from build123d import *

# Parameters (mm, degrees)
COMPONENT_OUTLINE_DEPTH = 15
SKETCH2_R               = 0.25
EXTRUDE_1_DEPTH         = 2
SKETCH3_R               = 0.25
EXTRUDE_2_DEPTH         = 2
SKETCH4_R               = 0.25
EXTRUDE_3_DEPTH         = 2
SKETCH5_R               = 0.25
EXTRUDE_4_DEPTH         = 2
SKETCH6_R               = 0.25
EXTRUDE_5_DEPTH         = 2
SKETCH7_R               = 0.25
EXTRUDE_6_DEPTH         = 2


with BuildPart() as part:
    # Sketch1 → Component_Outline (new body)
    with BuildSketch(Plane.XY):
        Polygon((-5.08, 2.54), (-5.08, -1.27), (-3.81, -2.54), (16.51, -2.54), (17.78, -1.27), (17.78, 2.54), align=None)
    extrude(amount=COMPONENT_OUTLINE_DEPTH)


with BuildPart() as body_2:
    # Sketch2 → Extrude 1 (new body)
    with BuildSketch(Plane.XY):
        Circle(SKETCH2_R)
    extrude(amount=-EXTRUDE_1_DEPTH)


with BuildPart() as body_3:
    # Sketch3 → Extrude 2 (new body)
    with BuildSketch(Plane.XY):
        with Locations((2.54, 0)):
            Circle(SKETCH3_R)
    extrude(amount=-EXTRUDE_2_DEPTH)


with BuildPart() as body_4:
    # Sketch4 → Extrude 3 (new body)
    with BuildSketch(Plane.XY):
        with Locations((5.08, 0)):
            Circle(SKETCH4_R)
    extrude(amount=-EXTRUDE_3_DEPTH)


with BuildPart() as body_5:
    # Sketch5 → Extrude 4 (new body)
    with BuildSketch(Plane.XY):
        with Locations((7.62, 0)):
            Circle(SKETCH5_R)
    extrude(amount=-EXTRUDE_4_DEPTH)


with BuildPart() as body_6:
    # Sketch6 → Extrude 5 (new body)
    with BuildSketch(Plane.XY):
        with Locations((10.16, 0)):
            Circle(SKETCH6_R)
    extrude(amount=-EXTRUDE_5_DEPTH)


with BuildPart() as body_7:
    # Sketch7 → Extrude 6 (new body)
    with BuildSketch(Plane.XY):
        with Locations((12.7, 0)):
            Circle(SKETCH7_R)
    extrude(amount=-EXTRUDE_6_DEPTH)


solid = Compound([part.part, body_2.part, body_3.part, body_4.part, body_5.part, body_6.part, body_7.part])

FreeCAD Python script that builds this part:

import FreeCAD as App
import Part
import Sketcher
from FreeCAD import Vector
Q = App.Units.Quantity


def add_polygon(sketch, points):
    """Adds a closed chain of lines whose ends are joined by coincident constraints."""
    first, n = sketch.GeometryCount, len(points)
    for a, b in zip(points, points[1:] + points[:1]):
        sketch.addGeometry(Part.LineSegment(App.Vector(*a, 0), App.Vector(*b, 0)), False)
    for i in range(n):
        sketch.addConstraint(Sketcher.Constraint("Coincident", first + i, 2, first + (i + 1) % n, 1))

doc = App.newDocument("Part")
params = doc.addObject("Spreadsheet::Sheet", "Params")
for row, (alias, value) in enumerate([
    ("sketch1_width", "20.32 mm"),
    ("sketch1_width2", "22.86 mm"),
    ("sketch1_height", "3.81 mm"),
    ("pad1_length", "15 mm"),
    ("sketch2_diameter", "0.5 mm"),
    ("pad2_length", "2 mm"),
    ("sketch3_diameter", "0.5 mm"),
    ("pad3_length", "2 mm"),
    ("sketch4_diameter", "0.5 mm"),
    ("pad4_length", "2 mm"),
    ("sketch5_diameter", "0.5 mm"),
    ("pad5_length", "2 mm"),
    ("sketch6_diameter", "0.5 mm"),
    ("pad6_length", "2 mm"),
    ("sketch7_diameter", "0.5 mm"),
    ("pad7_length", "2 mm"),
], start=1):
    params.set(f"A{row}", alias)
    params.set(f"B{row}", "=" + value)
    params.setAlias(f"B{row}", alias)

body = doc.addObject("PartDesign::Body", "Body")

# Sketch on XY plane
sketch1 = body.newObject("Sketcher::SketchObject", "Sketch")
sketch1.AttachmentSupport = (doc.getObject("XY_Plane"), [""])
sketch1.MapMode = "FlatFace"
add_polygon(sketch1, [(-5.1, 2.5), (-5.1, -1.3), (-3.8, -2.5), (16.5, -2.5), (17.8, -1.3), (17.8, 2.5)])  # lines 0-5
sketch1.addConstraint([
    Sketcher.Constraint("Vertical", 0),
    Sketcher.Constraint("Horizontal", 2),
    Sketcher.Constraint("Vertical", 4),
    Sketcher.Constraint("Horizontal", 5),
    Sketcher.Constraint("Perpendicular", 1, 3),
    Sketcher.Constraint("Horizontal", 0, 2, 3, 2),
    Sketcher.Constraint("Equal", 1, 3),
    Sketcher.Constraint("DistanceX", 2, 1, 2, 2, Q("20.32 mm")),
    Sketcher.Constraint("DistanceX", 5, 2, 5, 1, Q("22.86 mm")),
    Sketcher.Constraint("DistanceY", 0, 2, 0, 1, Q("3.81 mm")),
    Sketcher.Constraint("DistanceX", 0, 2, -1, 1, Q("5.08 mm")),
    Sketcher.Constraint("DistanceY", 0, 2, -1, 1, Q("1.27 mm")),
])
sketch1.setExpression("Constraints[13]", "Params.sketch1_width")
sketch1.setExpression("Constraints[14]", "Params.sketch1_width2")
sketch1.setExpression("Constraints[15]", "Params.sketch1_height")
pad1 = body.newObject("PartDesign::Pad", "Pad")
pad1.Profile = sketch1
pad1.setExpression("Length", "Params.pad1_length")
body2 = doc.addObject("PartDesign::Body", "Body001")

# Sketch on XY plane
sketch2 = body2.newObject("Sketcher::SketchObject", "Sketch001")
sketch2.AttachmentSupport = (doc.getObject("XY_Plane001"), [""])
sketch2.MapMode = "FlatFace"
sketch2.addGeometry(Part.Circle(Vector(0, 0, 0), Vector(0, 0, 1), 0.25), False)
sketch2.addConstraint([
    Sketcher.Constraint("Coincident", 0, 3, -1, 1),
    Sketcher.Constraint("Diameter", 0, Q("0.5 mm")),
])
sketch2.setExpression("Constraints[1]", "Params.sketch2_diameter")
pad2 = body2.newObject("PartDesign::Pad", "Pad001")
pad2.Profile = sketch2
pad2.setExpression("Length", "Params.pad2_length")
pad2.Reversed = True
body3 = doc.addObject("PartDesign::Body", "Body002")

# Sketch on XY plane
sketch3 = body3.newObject("Sketcher::SketchObject", "Sketch002")
sketch3.AttachmentSupport = (doc.getObject("XY_Plane002"), [""])
sketch3.MapMode = "FlatFace"
sketch3.addGeometry(Part.Circle(Vector(2.54, 0, 0), Vector(0, 0, 1), 0.25), False)
sketch3.addConstraint([
    Sketcher.Constraint("PointOnObject", 0, 3, -1),
    Sketcher.Constraint("Diameter", 0, Q("0.5 mm")),
    Sketcher.Constraint("DistanceX", -1, 1, 0, 3, Q("2.54 mm")),
])
sketch3.setExpression("Constraints[1]", "Params.sketch3_diameter")
pad3 = body3.newObject("PartDesign::Pad", "Pad002")
pad3.Profile = sketch3
pad3.setExpression("Length", "Params.pad3_length")
pad3.Reversed = True
body4 = doc.addObject("PartDesign::Body", "Body003")

# Sketch on XY plane
sketch4 = body4.newObject("Sketcher::SketchObject", "Sketch003")
sketch4.AttachmentSupport = (doc.getObject("XY_Plane003"), [""])
sketch4.MapMode = "FlatFace"
sketch4.addGeometry(Part.Circle(Vector(5.08, 0, 0), Vector(0, 0, 1), 0.25), False)
sketch4.addConstraint([
    Sketcher.Constraint("PointOnObject", 0, 3, -1),
    Sketcher.Constraint("Diameter", 0, Q("0.5 mm")),
    Sketcher.Constraint("DistanceX", -1, 1, 0, 3, Q("5.08 mm")),
])
sketch4.setExpression("Constraints[1]", "Params.sketch4_diameter")
pad4 = body4.newObject("PartDesign::Pad", "Pad003")
pad4.Profile = sketch4
pad4.setExpression("Length", "Params.pad4_length")
pad4.Reversed = True
body5 = doc.addObject("PartDesign::Body", "Body004")

# Sketch on XY plane
sketch5 = body5.newObject("Sketcher::SketchObject", "Sketch004")
sketch5.AttachmentSupport = (doc.getObject("XY_Plane004"), [""])
sketch5.MapMode = "FlatFace"
sketch5.addGeometry(Part.Circle(Vector(7.62, 0, 0), Vector(0, 0, 1), 0.25), False)
sketch5.addConstraint([
    Sketcher.Constraint("PointOnObject", 0, 3, -1),
    Sketcher.Constraint("Diameter", 0, Q("0.5 mm")),
    Sketcher.Constraint("DistanceX", -1, 1, 0, 3, Q("7.62 mm")),
])
sketch5.setExpression("Constraints[1]", "Params.sketch5_diameter")
pad5 = body5.newObject("PartDesign::Pad", "Pad004")
pad5.Profile = sketch5
pad5.setExpression("Length", "Params.pad5_length")
pad5.Reversed = True
body6 = doc.addObject("PartDesign::Body", "Body005")

# Sketch on XY plane
sketch6 = body6.newObject("Sketcher::SketchObject", "Sketch005")
sketch6.AttachmentSupport = (doc.getObject("XY_Plane005"), [""])
sketch6.MapMode = "FlatFace"
sketch6.addGeometry(Part.Circle(Vector(10.16, 0, 0), Vector(0, 0, 1), 0.25), False)
sketch6.addConstraint([
    Sketcher.Constraint("PointOnObject", 0, 3, -1),
    Sketcher.Constraint("Diameter", 0, Q("0.5 mm")),
    Sketcher.Constraint("DistanceX", -1, 1, 0, 3, Q("10.16 mm")),
])
sketch6.setExpression("Constraints[1]", "Params.sketch6_diameter")
pad6 = body6.newObject("PartDesign::Pad", "Pad005")
pad6.Profile = sketch6
pad6.setExpression("Length", "Params.pad6_length")
pad6.Reversed = True
body7 = doc.addObject("PartDesign::Body", "Body006")

# Sketch on XY plane
sketch7 = body7.newObject("Sketcher::SketchObject", "Sketch006")
sketch7.AttachmentSupport = (doc.getObject("XY_Plane006"), [""])
sketch7.MapMode = "FlatFace"
sketch7.addGeometry(Part.Circle(Vector(12.7, 0, 0), Vector(0, 0, 1), 0.25), False)
sketch7.addConstraint([
    Sketcher.Constraint("PointOnObject", 0, 3, -1),
    Sketcher.Constraint("Diameter", 0, Q("0.5 mm")),
    Sketcher.Constraint("DistanceX", -1, 1, 0, 3, Q("12.7 mm")),
])
sketch7.setExpression("Constraints[1]", "Params.sketch7_diameter")
pad7 = body7.newObject("PartDesign::Pad", "Pad006")
pad7.Profile = sketch7
pad7.setExpression("Length", "Params.pad7_length")
pad7.Reversed = True

doc.recompute()
